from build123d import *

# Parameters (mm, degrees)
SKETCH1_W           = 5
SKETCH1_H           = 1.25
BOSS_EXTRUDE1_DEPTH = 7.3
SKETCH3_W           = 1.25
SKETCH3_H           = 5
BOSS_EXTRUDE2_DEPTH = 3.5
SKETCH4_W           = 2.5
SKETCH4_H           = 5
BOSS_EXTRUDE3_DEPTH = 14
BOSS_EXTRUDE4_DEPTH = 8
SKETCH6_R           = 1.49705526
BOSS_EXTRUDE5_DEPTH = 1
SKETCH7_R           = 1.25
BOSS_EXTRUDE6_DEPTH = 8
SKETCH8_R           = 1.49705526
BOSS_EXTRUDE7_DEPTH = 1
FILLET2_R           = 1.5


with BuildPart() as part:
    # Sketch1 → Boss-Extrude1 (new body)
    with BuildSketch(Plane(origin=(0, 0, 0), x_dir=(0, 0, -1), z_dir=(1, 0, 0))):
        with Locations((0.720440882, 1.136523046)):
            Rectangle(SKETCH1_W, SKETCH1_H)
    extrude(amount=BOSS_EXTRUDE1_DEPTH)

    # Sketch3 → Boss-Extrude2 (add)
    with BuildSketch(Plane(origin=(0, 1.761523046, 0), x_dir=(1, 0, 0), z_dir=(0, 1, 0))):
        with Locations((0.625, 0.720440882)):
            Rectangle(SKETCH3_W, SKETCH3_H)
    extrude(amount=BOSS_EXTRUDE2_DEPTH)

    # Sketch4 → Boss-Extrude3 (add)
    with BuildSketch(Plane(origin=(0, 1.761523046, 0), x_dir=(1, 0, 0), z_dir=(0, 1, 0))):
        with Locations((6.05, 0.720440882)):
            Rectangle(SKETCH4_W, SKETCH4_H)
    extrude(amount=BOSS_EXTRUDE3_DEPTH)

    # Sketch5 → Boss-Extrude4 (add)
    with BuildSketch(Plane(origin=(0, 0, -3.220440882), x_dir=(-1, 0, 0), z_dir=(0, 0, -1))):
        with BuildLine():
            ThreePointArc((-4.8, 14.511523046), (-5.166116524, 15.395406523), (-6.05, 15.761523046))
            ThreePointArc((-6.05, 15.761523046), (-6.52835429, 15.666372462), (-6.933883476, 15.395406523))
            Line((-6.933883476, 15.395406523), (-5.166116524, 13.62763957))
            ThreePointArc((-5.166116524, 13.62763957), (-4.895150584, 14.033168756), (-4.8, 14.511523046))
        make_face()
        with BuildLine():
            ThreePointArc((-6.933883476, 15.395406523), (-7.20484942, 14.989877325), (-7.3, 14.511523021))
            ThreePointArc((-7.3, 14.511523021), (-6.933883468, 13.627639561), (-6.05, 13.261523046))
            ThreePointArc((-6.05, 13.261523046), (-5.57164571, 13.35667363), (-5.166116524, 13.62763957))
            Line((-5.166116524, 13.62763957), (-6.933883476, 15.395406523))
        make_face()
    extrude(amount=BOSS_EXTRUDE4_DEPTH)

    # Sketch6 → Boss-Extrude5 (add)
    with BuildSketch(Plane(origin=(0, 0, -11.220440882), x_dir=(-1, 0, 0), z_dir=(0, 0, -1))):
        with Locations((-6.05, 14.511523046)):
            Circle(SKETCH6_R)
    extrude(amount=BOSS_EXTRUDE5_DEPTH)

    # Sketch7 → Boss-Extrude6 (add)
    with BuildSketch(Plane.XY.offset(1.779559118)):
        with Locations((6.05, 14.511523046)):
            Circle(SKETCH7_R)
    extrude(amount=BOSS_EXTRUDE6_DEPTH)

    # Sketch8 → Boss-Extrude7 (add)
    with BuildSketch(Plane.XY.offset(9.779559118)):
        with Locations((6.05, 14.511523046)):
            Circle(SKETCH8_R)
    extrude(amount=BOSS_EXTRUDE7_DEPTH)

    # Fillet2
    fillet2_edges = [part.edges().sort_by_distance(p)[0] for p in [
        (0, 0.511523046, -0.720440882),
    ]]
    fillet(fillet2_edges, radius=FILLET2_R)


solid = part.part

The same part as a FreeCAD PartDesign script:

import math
import FreeCAD as App
import Part
import Sketcher
from FreeCAD import Vector


def edges_at(feature, points):
    """Names of the edges that pass closest to the given points."""
    edges = feature.Shape.Edges
    near = lambda p: min(range(len(edges)), key=lambda i: edges[i].distToShape(Part.Vertex(*p))[0])
    return sorted({f"Edge{near(p) + 1}" for p in points})


def add_polygon(sketch, points):
    """Adds a closed chain of lines whose ends are joined by coincident constraints."""
    first, n = sketch.GeometryCount, len(points)
    for a, b in zip(points, points[1:] + points[:1]):
        sketch.addGeometry(Part.LineSegment(App.Vector(*a, 0), App.Vector(*b, 0)), False)
    for i in range(n):
        sketch.addConstraint(Sketcher.Constraint("Coincident", first + i, 2, first + (i + 1) % n, 1))

doc = App.newDocument("Part")
body = doc.addObject("PartDesign::Body", "Body")

# Sketch on YZ plane
sketch1 = doc.addObject("Sketcher::SketchObject", "Sketch")
body.addObject(sketch1)
sketch1.AttachmentSupport = (doc.YZ_Plane, [""])
sketch1.MapMode = "FlatFace"
add_polygon(sketch1, [(1.761523, 1.779559), (0.511523, 1.779559), (0.511523, -3.220441), (1.761523, -3.220441)])  # lines 0-3
sketch1.addConstraint([
    Sketcher.Constraint("Horizontal", 0),
    Sketcher.Constraint("Vertical", 1),
    Sketcher.Constraint("Horizontal", 2),
    Sketcher.Constraint("Vertical", 3),
    Sketcher.Constraint("DistanceY", 1, 2, 1, 1, 5.0),
    Sketcher.Constraint("DistanceX", 0, 2, 0, 1, 1.25),
    Sketcher.Constraint("DistanceY", -1, 1, 0, 2, 1.779559),
    Sketcher.Constraint("DistanceX", -1, 1, 0, 2, 0.511523),
])
pad1 = doc.addObject("PartDesign::Pad", "Pad")
body.addObject(pad1)
pad1.Profile = sketch1
pad1.Length = 7.3

# Sketch on XZ plane
sketch2 = doc.addObject("Sketcher::SketchObject", "Sketch001")
body.addObject(sketch2)
sketch2.AttachmentSupport = (doc.XZ_Plane, [""])
sketch2.MapMode = "FlatFace"
sketch2.AttachmentOffset = App.Placement(Vector(0, 0, -1.761523), App.Rotation())
add_polygon(sketch2, [(0, -3.220441), (0, 1.779559), (1.25, 1.779559), (1.25, -3.220441)])  # lines 0-3
sketch2.addConstraint([
    Sketcher.Constraint("Vertical", 0),
    Sketcher.Constraint("Horizontal", 1),
    Sketcher.Constraint("Vertical", 2),
    Sketcher.Constraint("Horizontal", 3),
    Sketcher.Constraint("PointOnObject", 0, 2, -2),
    Sketcher.Constraint("DistanceY", 0, 1, 0, 2, 5.0),
    Sketcher.Constraint("DistanceX", 1, 1, 1, 2, 1.25),
    Sketcher.Constraint("DistanceY", -1, 1, 0, 2, 1.779559),
])
pad2 = doc.addObject("PartDesign::Pad", "Pad001")
body.addObject(pad2)
pad2.Profile = sketch2
pad2.Length = 3.5
pad2.Reversed = True

# Sketch on XZ plane
sketch3 = doc.addObject("Sketcher::SketchObject", "Sketch002")
body.addObject(sketch3)
sketch3.AttachmentSupport = (doc.XZ_Plane, [""])
sketch3.MapMode = "FlatFace"
sketch3.AttachmentOffset = App.Placement(Vector(0, 0, -1.761523), App.Rotation())
add_polygon(sketch3, [(4.8, -3.220441), (4.8, 1.779559), (7.3, 1.779559), (7.3, -3.220441)])  # lines 0-3
sketch3.addConstraint([
    Sketcher.Constraint("Vertical", 0),
    Sketcher.Constraint("Horizontal", 1),
    Sketcher.Constraint("Vertical", 2),
    Sketcher.Constraint("Horizontal", 3),
    Sketcher.Constraint("DistanceY", 0, 1, 0, 2, 5.0),
    Sketcher.Constraint("DistanceX", 1, 1, 1, 2, 2.5),
    Sketcher.Constraint("DistanceX", -1, 1, 0, 2, 4.8),
    Sketcher.Constraint("DistanceY", -1, 1, 0, 2, 1.779559),
])
pad3 = doc.addObject("PartDesign::Pad", "Pad002")
body.addObject(pad3)
pad3.Profile = sketch3
pad3.Length = 14
pad3.Reversed = True

# Sketch on XY plane
sketch4 = doc.addObject("Sketcher::SketchObject", "Sketch003")
body.addObject(sketch4)
sketch4.AttachmentSupport = (doc.XY_Plane, [""])
sketch4.MapMode = "FlatFace"
sketch4.AttachmentOffset = App.Placement(Vector(0, 0, -3.220441), App.Rotation())
sketch4.addGeometry([
    Part.ArcOfCircle(Part.Circle(Vector(6.05, 14.511523, 0), Vector(0, 0, 1), 1.25), math.radians(45), math.radians(90)),  # 0
    Part.ArcOfCircle(Part.Circle(Vector(6.05, 14.511523, 0), Vector(0, 0, 1), 1.25), math.radians(-0.000001), math.radians(45)),  # 1
    Part.ArcOfCircle(Part.Circle(Vector(6.05, 14.511523, 0), Vector(0, 0, 1), 1.25), math.radians(-90), math.radians(-0.000001)),  # 2
    Part.ArcOfCircle(Part.Circle(Vector(6.05, 14.511523, 0), Vector(0, 0, 1), 1.25), math.radians(-135), math.radians(-90)),  # 3
    Part.ArcOfCircle(Part.Circle(Vector(6.05, 14.511523, 0), Vector(0, 0, 1), 1.25), math.radians(180), math.radians(225)),  # 4
    Part.ArcOfCircle(Part.Circle(Vector(6.05, 14.511523, 0), Vector(0, 0, 1), 1.25), math.radians(90), math.radians(180)),  # 5
], False)
sketch4.addConstraint([
    Sketcher.Constraint("Tangent", 0, 1, 1, 2),
    Sketcher.Constraint("Tangent", 1, 1, 2, 2),
    Sketcher.Constraint("Tangent", 2, 1, 3, 2),
    Sketcher.Constraint("Tangent", 3, 1, 4, 2),
    Sketcher.Constraint("Tangent", 4, 1, 5, 2),
    Sketcher.Constraint("Tangent", 5, 1, 0, 2),
    Sketcher.Constraint("Coincident", 2, 3, 0, 3),
    Sketcher.Constraint("Equal", 2, 3),
    Sketcher.Constraint("Horizontal", 5, 3, 1, 1),
    Sketcher.Constraint("Horizontal", 1, 1, 4, 1),
    Sketcher.Constraint("Vertical", 5, 3, 2, 1),
    Sketcher.Constraint("Vertical", 2, 1, 5, 1),
    Sketcher.Constraint("Radius", 0, 1.25),
    Sketcher.Constraint("DistanceX", -1, 1, 1, 1, 7.3),
    Sketcher.Constraint("DistanceY", -1, 1, 3, 1, 13.62764),
    Sketcher.Constraint("DistanceY", -1, 1, 0, 3, 14.511523),
    Sketcher.Constraint("DistanceX", -1, 1, 0, 1, 6.933883),
])
pad4 = doc.addObject("PartDesign::Pad", "Pad003")
body.addObject(pad4)
pad4.Profile = sketch4
pad4.Length = 8
pad4.Reversed = True

# Sketch on XY plane
sketch5 = doc.addObject("Sketcher::SketchObject", "Sketch004")
body.addObject(sketch5)
sketch5.AttachmentSupport = (doc.XY_Plane, [""])
sketch5.MapMode = "FlatFace"
sketch5.AttachmentOffset = App.Placement(Vector(0, 0, -11.220441), App.Rotation())
sketch5.addGeometry(Part.Circle(Vector(6.05, 14.511523, 0), Vector(0, 0, 1), 1.497055), False)
sketch5.addConstraint([
    Sketcher.Constraint("Diameter", 0, 2.994111),
    Sketcher.Constraint("DistanceX", -1, 1, 0, 3, 6.05),
    Sketcher.Constraint("DistanceY", -1, 1, 0, 3, 14.511523),
])
pad5 = doc.addObject("PartDesign::Pad", "Pad004")
body.addObject(pad5)
pad5.Profile = sketch5
pad5.Length = 1
pad5.Reversed = True

# Sketch on XY plane
sketch6 = doc.addObject("Sketcher::SketchObject", "Sketch005")
body.addObject(sketch6)
sketch6.AttachmentSupport = (doc.XY_Plane, [""])
sketch6.MapMode = "FlatFace"
sketch6.AttachmentOffset = App.Placement(Vector(0, 0, 1.779559), App.Rotation())
sketch6.addGeometry(Part.Circle(Vector(6.05, 14.511523, 0), Vector(0, 0, 1), 1.25), False)
sketch6.addConstraint([
    Sketcher.Constraint("Diameter", 0, 2.5),
    Sketcher.Constraint("DistanceX", -1, 1, 0, 3, 6.05),
    Sketcher.Constraint("DistanceY", -1, 1, 0, 3, 14.511523),
])
pad6 = doc.addObject("PartDesign::Pad", "Pad005")
body.addObject(pad6)
pad6.Profile = sketch6
pad6.Length = 8

# Sketch on XY plane
sketch7 = doc.addObject("Sketcher::SketchObject", "Sketch006")
body.addObject(sketch7)
sketch7.AttachmentSupport = (doc.XY_Plane, [""])
sketch7.MapMode = "FlatFace"
sketch7.AttachmentOffset = App.Placement(Vector(0, 0, 9.779559), App.Rotation())
sketch7.addGeometry(Part.Circle(Vector(6.05, 14.511523, 0), Vector(0, 0, 1), 1.497055), False)
sketch7.addConstraint([
    Sketcher.Constraint("Diameter", 0, 2.994111),
    Sketcher.Constraint("DistanceX", -1, 1, 0, 3, 6.05),
    Sketcher.Constraint("DistanceY", -1, 1, 0, 3, 14.511523),
])
pad7 = doc.addObject("PartDesign::Pad", "Pad006")
body.addObject(pad7)
pad7.Profile = sketch7
pad7.Length = 1
doc.recompute()

fillet = doc.addObject("PartDesign::Fillet", "Fillet")
body.addObject(fillet)
fillet.Base = (pad7, edges_at(pad7, [(0, 0.512, -0.72)]))
fillet.Radius = 1.5

doc.recompute()
